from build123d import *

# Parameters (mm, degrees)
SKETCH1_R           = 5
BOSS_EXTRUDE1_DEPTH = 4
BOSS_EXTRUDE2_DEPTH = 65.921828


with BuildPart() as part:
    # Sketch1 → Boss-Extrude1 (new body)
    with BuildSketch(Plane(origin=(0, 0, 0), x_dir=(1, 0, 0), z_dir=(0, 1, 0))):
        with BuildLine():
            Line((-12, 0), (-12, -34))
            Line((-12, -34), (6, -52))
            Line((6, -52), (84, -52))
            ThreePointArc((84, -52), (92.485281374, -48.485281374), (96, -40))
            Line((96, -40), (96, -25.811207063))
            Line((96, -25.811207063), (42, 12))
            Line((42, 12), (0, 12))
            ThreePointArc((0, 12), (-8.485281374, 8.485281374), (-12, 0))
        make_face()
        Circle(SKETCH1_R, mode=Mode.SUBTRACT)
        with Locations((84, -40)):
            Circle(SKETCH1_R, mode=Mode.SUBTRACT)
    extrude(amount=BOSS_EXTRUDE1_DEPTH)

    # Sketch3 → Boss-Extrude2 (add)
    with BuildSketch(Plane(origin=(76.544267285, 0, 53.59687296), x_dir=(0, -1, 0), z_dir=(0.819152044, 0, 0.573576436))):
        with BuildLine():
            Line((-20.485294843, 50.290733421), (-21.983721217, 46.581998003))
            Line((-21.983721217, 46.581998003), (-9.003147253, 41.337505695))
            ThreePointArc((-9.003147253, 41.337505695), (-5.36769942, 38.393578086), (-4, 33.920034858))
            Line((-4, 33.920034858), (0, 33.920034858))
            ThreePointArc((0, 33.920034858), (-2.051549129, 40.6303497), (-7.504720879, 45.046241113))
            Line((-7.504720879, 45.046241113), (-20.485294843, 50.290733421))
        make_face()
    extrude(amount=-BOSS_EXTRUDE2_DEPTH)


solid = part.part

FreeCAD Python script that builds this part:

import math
import FreeCAD as App
import Part
import Sketcher

V = App.Vector
Q = App.Units.Quantity

doc = App.newDocument("Part")
body = doc.addObject("PartDesign::Body", "Body")

# Sketch on XZ plane
sketch1 = doc.addObject("Sketcher::SketchObject", "Sketch")
body.addObject(sketch1)
sketch1.AttachmentSupport = (doc.XZ_Plane, [""])
sketch1.MapMode = "FlatFace"
sketch1.addGeometry([
    Part.LineSegment(V(-12, 0, 0), V(-12, 34, 0)),  # 0
    Part.LineSegment(V(-12, 34, 0), V(6, 52, 0)),  # 1
    Part.LineSegment(V(6, 52, 0), V(84, 52, 0)),  # 2
    Part.ArcOfCircle(Part.Circle(V(84, 40, 0), V(0, 0, 1), 12), math.radians(0), math.radians(90)),  # 3
    Part.LineSegment(V(96, 40, 0), V(96, 26, 0)),  # 4
    Part.LineSegment(V(96, 26, 0), V(42, -12, 0)),  # 5
    Part.LineSegment(V(42, -12, 0), V(0, -12, 0)),  # 6
    Part.ArcOfCircle(Part.Circle(V(0, 0, 0), V(0, 0, 1), 12), math.radians(-180), math.radians(-90)),  # 7
    Part.Circle(V(84, 40, 0), V(0, 0, 1), 5),  # 8
    Part.Circle(V(0, 0, 0), V(0, 0, 1), 5),  # 9
], False)
sketch1.addConstraint([
    Sketcher.Constraint("Coincident", 0, 2, 1, 1),
    Sketcher.Constraint("Coincident", 1, 2, 2, 1),
    Sketcher.Constraint("Tangent", 2, 2, 3, 2),
    Sketcher.Constraint("Tangent", 3, 1, 4, 1),
    Sketcher.Constraint("Coincident", 4, 2, 5, 1),
    Sketcher.Constraint("Coincident", 5, 2, 6, 1),
    Sketcher.Constraint("Tangent", 6, 2, 7, 2),
    Sketcher.Constraint("Tangent", 7, 1, 0, 1),
    Sketcher.Constraint("Vertical", 0),
    Sketcher.Constraint("Horizontal", 2),
    Sketcher.Constraint("Vertical", 4),
    Sketcher.Constraint("Horizontal", 6),
    Sketcher.Constraint("Coincident", 7, 3, -1, 1),
    Sketcher.Constraint("Coincident", 9, 3, -1, 1),
    Sketcher.Constraint("Coincident", 8, 3, 3, 3),
    Sketcher.Constraint("Equal", 3, 7),
    Sketcher.Constraint("Equal", 8, 9),
    Sketcher.Constraint("Diameter", 8, 10.0),
    Sketcher.Constraint("Radius", 3, 12.0),
    Sketcher.Constraint("DistanceX", 2, 1, 2, 2, 78.0),
    Sketcher.Constraint("DistanceX", 6, 2, 6, 1, 42.0),
    Sketcher.Constraint("DistanceY", 0, 1, 0, 2, 34.0),
    Sketcher.Constraint("Angle", 1, Q("45 deg")),
    Sketcher.Constraint("Angle", 5, Q("-145 deg")),
    Sketcher.Constraint("DistanceX", -1, 1, 3, 3, 84.0),
])
pad1 = doc.addObject("PartDesign::Pad", "Pad")
body.addObject(pad1)
pad1.Profile = sketch1
pad1.Length = 4
pad1.Reversed = True

# Sketch on an angled plane
sketch2 = doc.addObject("Sketcher::SketchObject", "Sketch001")
body.addObject(sketch2)
sketch2.Placement = App.Placement(V(76.544267, 0, 53.596873), App.Rotation(V(0, -1, 0), V(0.573576436, 0, -0.819152044), V(0.819152044, 0, 0.573576436), "ZXY"))
sketch2.addGeometry([
    Part.LineSegment(V(-20.5, 50.3, 0), V(-22, 46.6, 0)),  # 0
    Part.LineSegment(V(-22, 46.6, 0), V(-9, 41.3, 0)),  # 1
    Part.ArcOfCircle(Part.Circle(V(-12, 33.9, 0), V(0, 0, 1), 8), math.radians(0), math.radians(68)),  # 2
    Part.LineSegment(V(-4, 33.9, 0), V(0, 33.9, 0)),  # 3
    Part.ArcOfCircle(Part.Circle(V(-12, 33.9, 0), V(0, 0, 1), 12), math.radians(0), math.radians(68)),  # 4
    Part.LineSegment(V(-7.5, 45, 0), V(-20.5, 50.3, 0)),  # 5
], False)
sketch2.addConstraint([
    Sketcher.Constraint("Coincident", 0, 2, 1, 1),
    Sketcher.Constraint("Tangent", 1, 2, 2, 2),
    Sketcher.Constraint("Coincident", 2, 1, 3, 1),
    Sketcher.Constraint("Coincident", 3, 2, 4, 1),
    Sketcher.Constraint("Tangent", 4, 2, 5, 1),
    Sketcher.Constraint("Coincident", 5, 2, 0, 1),
    Sketcher.Constraint("Horizontal", 3),
    Sketcher.Constraint("Coincident", 4, 3, 2, 3),
    Sketcher.Constraint("PointOnObject", 3, 2, -2),
    Sketcher.Constraint("Perpendicular", 0, 1),
    Sketcher.Constraint("Parallel", 1, 5),
    Sketcher.Constraint("Horizontal", 4, 3, 2, 1),
    Sketcher.Constraint("Radius", 2, 8.0),
    Sketcher.Constraint("Radius", 4, 12.0),
    Sketcher.Constraint("Angle", 0, Q("-112 deg")),
    Sketcher.Constraint("Distance", 1, 14.0),
    Sketcher.Constraint("DistanceY", -1, 1, 4, 2, 45.046241),
])
pad2 = doc.addObject("PartDesign::Pad", "Pad001")
body.addObject(pad2)
pad2.Profile = sketch2
pad2.Length = 65.921828
pad2.Reversed = True

doc.recompute()
